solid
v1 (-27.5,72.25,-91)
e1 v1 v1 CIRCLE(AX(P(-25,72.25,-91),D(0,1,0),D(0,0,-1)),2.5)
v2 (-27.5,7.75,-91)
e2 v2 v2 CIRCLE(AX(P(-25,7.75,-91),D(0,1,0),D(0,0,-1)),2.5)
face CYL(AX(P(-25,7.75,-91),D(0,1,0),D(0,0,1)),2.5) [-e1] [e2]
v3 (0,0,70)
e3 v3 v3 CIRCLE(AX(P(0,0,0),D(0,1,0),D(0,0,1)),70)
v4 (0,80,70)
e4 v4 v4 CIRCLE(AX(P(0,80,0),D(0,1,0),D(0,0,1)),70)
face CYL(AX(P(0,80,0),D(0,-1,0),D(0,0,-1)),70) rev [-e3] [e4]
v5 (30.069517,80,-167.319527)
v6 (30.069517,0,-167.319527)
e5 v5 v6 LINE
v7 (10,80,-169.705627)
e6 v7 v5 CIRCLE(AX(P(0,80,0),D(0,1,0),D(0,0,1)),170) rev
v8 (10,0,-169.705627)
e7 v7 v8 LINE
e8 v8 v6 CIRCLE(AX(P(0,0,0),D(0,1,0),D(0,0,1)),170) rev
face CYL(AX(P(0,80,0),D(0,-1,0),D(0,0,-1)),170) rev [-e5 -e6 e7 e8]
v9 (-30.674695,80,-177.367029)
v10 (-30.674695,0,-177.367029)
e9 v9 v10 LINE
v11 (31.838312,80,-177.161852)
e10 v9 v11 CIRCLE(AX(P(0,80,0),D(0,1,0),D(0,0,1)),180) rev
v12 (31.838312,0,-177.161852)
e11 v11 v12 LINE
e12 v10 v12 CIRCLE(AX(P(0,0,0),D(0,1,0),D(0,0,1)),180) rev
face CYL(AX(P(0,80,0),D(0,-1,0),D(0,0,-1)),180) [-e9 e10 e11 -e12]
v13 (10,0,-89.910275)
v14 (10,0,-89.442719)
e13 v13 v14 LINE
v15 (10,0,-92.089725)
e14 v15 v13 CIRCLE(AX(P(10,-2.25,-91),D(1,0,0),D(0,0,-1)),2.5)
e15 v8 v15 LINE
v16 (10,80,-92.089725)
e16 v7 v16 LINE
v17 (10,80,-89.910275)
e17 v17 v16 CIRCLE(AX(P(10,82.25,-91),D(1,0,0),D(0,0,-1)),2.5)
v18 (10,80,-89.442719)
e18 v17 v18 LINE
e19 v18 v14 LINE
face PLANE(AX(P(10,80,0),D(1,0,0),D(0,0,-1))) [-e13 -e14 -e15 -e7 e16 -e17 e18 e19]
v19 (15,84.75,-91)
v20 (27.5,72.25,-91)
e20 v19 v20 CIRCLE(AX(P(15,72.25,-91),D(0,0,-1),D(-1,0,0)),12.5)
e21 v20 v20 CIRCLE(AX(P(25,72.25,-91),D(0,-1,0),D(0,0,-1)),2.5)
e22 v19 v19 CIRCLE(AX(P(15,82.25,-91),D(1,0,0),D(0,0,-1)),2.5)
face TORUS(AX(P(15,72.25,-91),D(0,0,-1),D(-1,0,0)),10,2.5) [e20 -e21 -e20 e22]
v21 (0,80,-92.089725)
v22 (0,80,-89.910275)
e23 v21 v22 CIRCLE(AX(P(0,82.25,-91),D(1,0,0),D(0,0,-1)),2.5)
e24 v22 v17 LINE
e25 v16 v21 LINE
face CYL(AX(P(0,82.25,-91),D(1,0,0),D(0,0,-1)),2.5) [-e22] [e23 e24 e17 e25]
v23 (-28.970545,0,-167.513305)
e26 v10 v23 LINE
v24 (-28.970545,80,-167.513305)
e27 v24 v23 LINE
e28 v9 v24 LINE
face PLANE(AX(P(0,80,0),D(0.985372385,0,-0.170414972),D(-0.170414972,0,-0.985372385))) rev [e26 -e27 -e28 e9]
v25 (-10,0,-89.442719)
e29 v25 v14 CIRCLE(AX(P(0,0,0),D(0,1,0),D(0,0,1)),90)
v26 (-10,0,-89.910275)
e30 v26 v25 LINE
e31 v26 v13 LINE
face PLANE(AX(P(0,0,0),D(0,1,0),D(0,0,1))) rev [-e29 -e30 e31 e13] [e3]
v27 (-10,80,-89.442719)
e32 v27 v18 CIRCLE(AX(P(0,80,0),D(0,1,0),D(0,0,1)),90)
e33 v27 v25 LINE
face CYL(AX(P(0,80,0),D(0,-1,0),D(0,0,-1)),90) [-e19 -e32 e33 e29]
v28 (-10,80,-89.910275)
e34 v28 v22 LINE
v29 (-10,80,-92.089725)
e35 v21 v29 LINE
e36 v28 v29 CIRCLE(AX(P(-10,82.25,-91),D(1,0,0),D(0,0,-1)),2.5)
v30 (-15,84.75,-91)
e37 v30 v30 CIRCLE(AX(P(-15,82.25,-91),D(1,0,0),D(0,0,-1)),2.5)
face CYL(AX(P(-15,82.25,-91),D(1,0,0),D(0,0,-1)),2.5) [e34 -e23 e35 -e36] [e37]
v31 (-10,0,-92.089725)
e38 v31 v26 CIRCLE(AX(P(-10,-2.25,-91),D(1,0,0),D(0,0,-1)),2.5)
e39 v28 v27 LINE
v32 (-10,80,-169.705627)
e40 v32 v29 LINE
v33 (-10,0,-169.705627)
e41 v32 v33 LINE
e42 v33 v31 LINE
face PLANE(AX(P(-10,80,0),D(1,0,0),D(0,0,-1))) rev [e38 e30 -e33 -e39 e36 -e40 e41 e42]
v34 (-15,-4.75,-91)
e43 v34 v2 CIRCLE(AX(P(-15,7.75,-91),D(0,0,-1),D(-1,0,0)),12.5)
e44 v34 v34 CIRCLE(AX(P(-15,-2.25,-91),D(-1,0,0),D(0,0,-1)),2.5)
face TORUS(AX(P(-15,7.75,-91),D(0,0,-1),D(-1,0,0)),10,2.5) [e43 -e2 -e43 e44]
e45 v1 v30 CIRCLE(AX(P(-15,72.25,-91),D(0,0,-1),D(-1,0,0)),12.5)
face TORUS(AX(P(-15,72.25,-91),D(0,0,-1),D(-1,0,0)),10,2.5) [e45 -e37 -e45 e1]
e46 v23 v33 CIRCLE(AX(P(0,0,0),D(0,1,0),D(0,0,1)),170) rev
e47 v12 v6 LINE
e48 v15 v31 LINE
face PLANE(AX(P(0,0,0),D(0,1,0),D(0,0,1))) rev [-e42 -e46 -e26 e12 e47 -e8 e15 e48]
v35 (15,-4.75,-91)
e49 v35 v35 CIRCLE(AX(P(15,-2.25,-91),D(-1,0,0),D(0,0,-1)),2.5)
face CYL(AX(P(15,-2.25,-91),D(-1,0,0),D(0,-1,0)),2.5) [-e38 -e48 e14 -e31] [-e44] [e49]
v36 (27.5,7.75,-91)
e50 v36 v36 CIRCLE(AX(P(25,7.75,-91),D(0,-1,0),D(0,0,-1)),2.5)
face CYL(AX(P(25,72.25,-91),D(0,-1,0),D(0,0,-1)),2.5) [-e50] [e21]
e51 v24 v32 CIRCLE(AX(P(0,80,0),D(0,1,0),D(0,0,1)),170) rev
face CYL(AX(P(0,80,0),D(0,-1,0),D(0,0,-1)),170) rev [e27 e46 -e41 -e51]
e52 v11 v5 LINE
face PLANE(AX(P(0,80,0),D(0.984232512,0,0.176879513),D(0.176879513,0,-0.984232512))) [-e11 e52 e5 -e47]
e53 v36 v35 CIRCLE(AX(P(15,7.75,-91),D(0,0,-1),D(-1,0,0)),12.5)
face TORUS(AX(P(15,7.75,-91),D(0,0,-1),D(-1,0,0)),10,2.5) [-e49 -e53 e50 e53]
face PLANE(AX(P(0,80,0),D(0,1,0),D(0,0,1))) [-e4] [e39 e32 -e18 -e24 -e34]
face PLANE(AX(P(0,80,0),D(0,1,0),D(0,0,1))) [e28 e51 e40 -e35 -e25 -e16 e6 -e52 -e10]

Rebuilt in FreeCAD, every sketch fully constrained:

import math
import FreeCAD as App
import Part
import Sketcher

V = App.Vector
Q = App.Units.Quantity

doc = App.newDocument("Part")
body = doc.addObject("PartDesign::Body", "Body")

# Sketch on XZ plane
sketch1 = body.newObject("Sketcher::SketchObject", "Sketch")
sketch1.AttachmentSupport = (doc.getObject("XZ_Plane"), [""])
sketch1.MapMode = "FlatFace"
sketch1.addGeometry(Part.Circle(V(0, 0, 0), V(0, 0, 1), 90), False)
sketch1.addGeometry(Part.Circle(V(0, 0, 0), V(0, 0, 1), 70), False)
sketch1.addConstraint(Sketcher.Constraint("Coincident", 0, 3, -1, 1))
sketch1.addConstraint(Sketcher.Constraint("Coincident", 1, 3, -1, 1))
sketch1.addConstraint(Sketcher.Constraint("Diameter", 0, Q("180 mm")))
sketch1.addConstraint(Sketcher.Constraint("Diameter", 1, Q("140 mm")))
pad1 = body.newObject("PartDesign::Pad", "Pad")
pad1.Profile = sketch1
pad1.Length = 80
pad1.Reversed = True

# Sketch on XZ plane
sketch2 = body.newObject("Sketcher::SketchObject", "Sketch001")
sketch2.AttachmentSupport = (doc.getObject("XZ_Plane"), [""])
sketch2.MapMode = "FlatFace"
sketch2.addGeometry(Part.ArcOfCircle(Part.Circle(V(0, 0, 0), V(0, 0, 1), 180), math.radians(-99.811947), math.radians(-79.811947)), False)
sketch2.addGeometry(Part.LineSegment(V(-30.674695, -177.367029, 0), V(-28.970545, -167.513305, 0)), False)
sketch2.addGeometry(Part.ArcOfCircle(Part.Circle(V(0, 0, 0), V(0, 0, 1), 170), math.radians(-99.811947), math.radians(-93.372287)), False)
sketch2.addGeometry(Part.LineSegment(V(-10, -169.705627, 0), V(-10, -89.442719, 0)), False)
sketch2.addGeometry(Part.ArcOfCircle(Part.Circle(V(0, 0, 0), V(0, 0, 1), 90), math.radians(-96.37937), math.radians(-83.62063)), False)
sketch2.addGeometry(Part.LineSegment(V(10, -89.442719, 0), V(10, -169.705627, 0)), False)
sketch2.addGeometry(Part.ArcOfCircle(Part.Circle(V(0, 0, 0), V(0, 0, 1), 170), math.radians(-86.627713), math.radians(-79.811947)), False)
sketch2.addGeometry(Part.LineSegment(V(30.069517, -167.319527, 0), V(31.838312, -177.161852, 0)), False)
sketch2.addConstraint(Sketcher.Constraint("Coincident", 0, 1, 1, 1))
sketch2.addConstraint(Sketcher.Constraint("Coincident", 1, 2, 2, 1))
sketch2.addConstraint(Sketcher.Constraint("Coincident", 2, 2, 3, 1))
sketch2.addConstraint(Sketcher.Constraint("Coincident", 3, 2, 4, 1))
sketch2.addConstraint(Sketcher.Constraint("Coincident", 4, 2, 5, 1))
sketch2.addConstraint(Sketcher.Constraint("Coincident", 5, 2, 6, 1))
sketch2.addConstraint(Sketcher.Constraint("Coincident", 6, 2, 7, 1))
sketch2.addConstraint(Sketcher.Constraint("Coincident", 7, 2, 0, 2))
sketch2.addConstraint(Sketcher.Constraint("Vertical", 3))
sketch2.addConstraint(Sketcher.Constraint("Vertical", 5))
sketch2.addConstraint(Sketcher.Constraint("Coincident", 0, 3, -1, 1))
sketch2.addConstraint(Sketcher.Constraint("Coincident", 2, 3, -1, 1))
sketch2.addConstraint(Sketcher.Constraint("Coincident", 4, 3, -1, 1))
sketch2.addConstraint(Sketcher.Constraint("Coincident", 6, 3, -1, 1))
sketch2.addConstraint(Sketcher.Constraint("Equal", 2, 6))
sketch2.addConstraint(Sketcher.Constraint("Horizontal", 3, 2, 4, 2))
sketch2.addConstraint(Sketcher.Constraint("Radius", 0, Q("180 mm")))
sketch2.addConstraint(Sketcher.Constraint("Radius", 2, Q("170 mm")))
sketch2.addConstraint(Sketcher.Constraint("Radius", 4, Q("90 mm")))
sketch2.addConstraint(Sketcher.Constraint("DistanceX", 2, 2, -1, 1, Q("10 mm")))
sketch2.addConstraint(Sketcher.Constraint("DistanceY", 0, 1, 2, 2, Q("7.661402 mm")))
sketch2.addConstraint(Sketcher.Constraint("DistanceY", 5, 2, 6, 2, Q("2.3861 mm")))
sketch2.addConstraint(Sketcher.Constraint("DistanceX", 0, 1, 1, 2, Q("1.70415 mm")))
sketch2.addConstraint(Sketcher.Constraint("DistanceX", -1, 1, 7, 2, Q("31.838312 mm")))
pad2 = body.newObject("PartDesign::Pad", "Pad001")
pad2.Profile = sketch2
pad2.Length = 80
pad2.Reversed = True

# Sketch on YZ plane
sketch3 = body.newObject("Sketcher::SketchObject", "Sketch002")
sketch3.AttachmentSupport = (doc.getObject("YZ_Plane"), [""])
sketch3.MapMode = "FlatFace"
sketch3.addGeometry(Part.Circle(V(82.25, -91, 0), V(0, 0, 1), 2.5), False)
sketch3.addConstraint(Sketcher.Constraint("Diameter", 0, Q("5 mm")))
sketch3.addConstraint(Sketcher.Constraint("DistanceY", 0, 3, -1, 1, Q("91 mm")))
sketch3.addConstraint(Sketcher.Constraint("DistanceX", -1, 1, 0, 3, Q("82.25 mm")))

# Sketch on XY plane
sketch4 = body.newObject("Sketcher::SketchObject", "Sketch003")
sketch4.AttachmentSupport = (doc.getObject("XY_Plane"), [""])
sketch4.MapMode = "FlatFace"
sketch4.AttachmentOffset = App.Placement(V(0, 0, -91), App.Rotation())
sketch4.addGeometry(Part.LineSegment(V(15, -2.25, 0), V(-15, -2.25, 0)), False)
sketch4.addGeometry(Part.ArcOfCircle(Part.Circle(V(-15, 7.75, 0), V(0, 0, 1), 10), math.radians(180), math.radians(270)), False)
sketch4.addGeometry(Part.LineSegment(V(-25, 7.75, 0), V(-25, 72.25, 0)), False)
sketch4.addGeometry(Part.ArcOfCircle(Part.Circle(V(-15, 72.25, 0), V(0, 0, 1), 10), math.radians(90), math.radians(180)), False)
sketch4.addGeometry(Part.LineSegment(V(-15, 82.25, 0), V(15, 82.25, 0)), False)
sketch4.addGeometry(Part.ArcOfCircle(Part.Circle(V(15, 72.25, 0), V(0, 0, 1), 10), math.radians(0), math.radians(90)), False)
sketch4.addGeometry(Part.LineSegment(V(25, 72.25, 0), V(25, 7.75, 0)), False)
sketch4.addGeometry(Part.ArcOfCircle(Part.Circle(V(15, 7.75, 0), V(0, 0, 1), 10), math.radians(-90), math.radians(0)), False)
sketch4.addConstraint(Sketcher.Constraint("Tangent", 0, 2, 1, 2))
sketch4.addConstraint(Sketcher.Constraint("Tangent", 1, 1, 2, 1))
sketch4.addConstraint(Sketcher.Constraint("Tangent", 2, 2, 3, 2))
sketch4.addConstraint(Sketcher.Constraint("Tangent", 3, 1, 4, 1))
sketch4.addConstraint(Sketcher.Constraint("Tangent", 4, 2, 5, 2))
sketch4.addConstraint(Sketcher.Constraint("Tangent", 5, 1, 6, 1))
sketch4.addConstraint(Sketcher.Constraint("Tangent", 6, 2, 7, 2))
sketch4.addConstraint(Sketcher.Constraint("Tangent", 7, 1, 0, 1))
sketch4.addConstraint(Sketcher.Constraint("Horizontal", 0))
sketch4.addConstraint(Sketcher.Constraint("Vertical", 2))
sketch4.addConstraint(Sketcher.Constraint("Horizontal", 4))
sketch4.addConstraint(Sketcher.Constraint("Vertical", 6))
sketch4.addConstraint(Sketcher.Constraint("Equal", 1, 3))
sketch4.addConstraint(Sketcher.Constraint("Equal", 3, 5))
sketch4.addConstraint(Sketcher.Constraint("Equal", 5, 7))
sketch4.addConstraint(Sketcher.Constraint("Radius", 1, Q("10 mm")))
sketch4.addConstraint(Sketcher.Constraint("DistanceX", 0, 2, 0, 1, Q("30 mm")))
sketch4.addConstraint(Sketcher.Constraint("DistanceY", 2, 1, 2, 2, Q("64.5 mm")))
sketch4.addConstraint(Sketcher.Constraint("DistanceX", 1, 3, -1, 1, Q("15 mm")))
sketch4.addConstraint(Sketcher.Constraint("DistanceY", -1, 1, 1, 3, Q("7.75 mm")))
doc.recompute()

additivepipe = body.newObject("PartDesign::AdditivePipe", "AdditivePipe")
additivepipe.Profile = sketch3
additivepipe.Spine = (sketch4, ["Edge1", "Edge2", "Edge3", "Edge4", "Edge5", "Edge6", "Edge7", "Edge8"])

doc.recompute()
